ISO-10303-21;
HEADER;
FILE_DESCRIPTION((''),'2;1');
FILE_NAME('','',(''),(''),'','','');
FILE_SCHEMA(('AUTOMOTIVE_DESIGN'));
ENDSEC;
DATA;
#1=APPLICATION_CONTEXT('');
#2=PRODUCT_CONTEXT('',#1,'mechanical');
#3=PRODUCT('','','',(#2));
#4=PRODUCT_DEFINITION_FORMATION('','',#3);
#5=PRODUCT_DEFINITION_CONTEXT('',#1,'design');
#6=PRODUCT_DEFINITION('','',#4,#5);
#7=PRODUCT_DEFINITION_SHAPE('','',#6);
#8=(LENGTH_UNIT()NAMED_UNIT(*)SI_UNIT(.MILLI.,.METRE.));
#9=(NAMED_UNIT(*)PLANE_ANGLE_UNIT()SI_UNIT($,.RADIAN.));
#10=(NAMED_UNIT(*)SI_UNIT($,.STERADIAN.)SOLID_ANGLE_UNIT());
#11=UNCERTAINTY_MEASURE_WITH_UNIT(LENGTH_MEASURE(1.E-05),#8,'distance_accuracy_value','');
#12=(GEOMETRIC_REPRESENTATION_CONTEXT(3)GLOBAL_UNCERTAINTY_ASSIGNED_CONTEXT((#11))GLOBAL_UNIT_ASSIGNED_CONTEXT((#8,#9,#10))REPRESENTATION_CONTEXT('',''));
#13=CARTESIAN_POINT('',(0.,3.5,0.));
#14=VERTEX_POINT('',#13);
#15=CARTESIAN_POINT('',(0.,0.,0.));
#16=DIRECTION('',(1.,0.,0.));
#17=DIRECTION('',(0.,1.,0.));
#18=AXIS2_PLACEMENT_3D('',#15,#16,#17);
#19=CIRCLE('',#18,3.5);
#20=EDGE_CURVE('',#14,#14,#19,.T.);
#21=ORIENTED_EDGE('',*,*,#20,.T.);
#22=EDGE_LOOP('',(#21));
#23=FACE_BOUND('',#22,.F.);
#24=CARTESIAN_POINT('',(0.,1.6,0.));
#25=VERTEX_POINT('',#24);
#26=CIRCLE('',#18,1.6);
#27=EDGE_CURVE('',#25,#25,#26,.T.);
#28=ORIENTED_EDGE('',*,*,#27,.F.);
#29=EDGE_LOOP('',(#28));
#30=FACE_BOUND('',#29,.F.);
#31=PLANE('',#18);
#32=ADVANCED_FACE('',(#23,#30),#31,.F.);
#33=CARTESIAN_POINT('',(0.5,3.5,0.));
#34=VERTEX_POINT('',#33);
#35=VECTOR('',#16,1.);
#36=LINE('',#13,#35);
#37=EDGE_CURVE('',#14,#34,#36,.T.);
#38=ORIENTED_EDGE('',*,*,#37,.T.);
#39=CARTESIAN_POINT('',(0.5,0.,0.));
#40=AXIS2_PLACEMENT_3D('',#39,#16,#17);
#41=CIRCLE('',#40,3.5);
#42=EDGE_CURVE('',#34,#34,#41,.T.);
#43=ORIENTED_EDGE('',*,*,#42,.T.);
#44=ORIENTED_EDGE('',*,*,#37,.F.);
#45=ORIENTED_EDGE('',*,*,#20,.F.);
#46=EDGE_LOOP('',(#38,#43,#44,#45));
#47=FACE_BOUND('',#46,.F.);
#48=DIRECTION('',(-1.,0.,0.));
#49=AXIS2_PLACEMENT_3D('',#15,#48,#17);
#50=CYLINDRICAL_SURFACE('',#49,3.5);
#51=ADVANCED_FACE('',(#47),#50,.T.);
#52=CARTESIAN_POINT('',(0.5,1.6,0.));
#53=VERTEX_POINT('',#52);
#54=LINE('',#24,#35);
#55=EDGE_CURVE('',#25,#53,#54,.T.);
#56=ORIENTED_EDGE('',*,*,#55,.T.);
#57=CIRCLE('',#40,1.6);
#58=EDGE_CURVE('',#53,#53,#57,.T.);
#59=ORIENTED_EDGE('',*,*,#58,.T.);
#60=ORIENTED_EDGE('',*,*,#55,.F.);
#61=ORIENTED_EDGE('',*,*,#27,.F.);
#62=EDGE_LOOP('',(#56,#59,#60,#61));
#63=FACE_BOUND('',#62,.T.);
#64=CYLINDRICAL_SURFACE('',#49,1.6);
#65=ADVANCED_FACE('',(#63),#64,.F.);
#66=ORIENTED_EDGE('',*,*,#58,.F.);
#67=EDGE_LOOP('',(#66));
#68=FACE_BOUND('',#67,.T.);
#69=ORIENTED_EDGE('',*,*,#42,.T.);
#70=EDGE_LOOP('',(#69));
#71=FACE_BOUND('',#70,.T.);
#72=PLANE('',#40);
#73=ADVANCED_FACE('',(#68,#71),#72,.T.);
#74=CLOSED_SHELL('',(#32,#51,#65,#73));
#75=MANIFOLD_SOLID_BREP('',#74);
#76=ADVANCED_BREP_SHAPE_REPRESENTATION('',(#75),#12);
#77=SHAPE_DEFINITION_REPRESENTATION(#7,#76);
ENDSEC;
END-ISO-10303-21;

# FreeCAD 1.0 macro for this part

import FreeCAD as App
import Part
import Sketcher
from FreeCAD import Vector
Q = App.Units.Quantity

doc = App.newDocument("Part")
body = doc.addObject("PartDesign::Body", "Body")

# Sketch on YZ plane
sketch1 = doc.addObject("Sketcher::SketchObject", "Sketch")
body.addObject(sketch1)
sketch1.AttachmentSupport = (doc.YZ_Plane, [""])
sketch1.MapMode = "FlatFace"
sketch1.addGeometry([
    Part.Circle(Vector(0, 0, 0), Vector(0, 0, 1), 3.5),
    Part.Circle(Vector(0, 0, 0), Vector(0, 0, 1), 1.6),
], False)
sketch1.addConstraint([
    Sketcher.Constraint("Coincident", 0, 3, -1, 1),
    Sketcher.Constraint("Coincident", 1, 3, -1, 1),
    Sketcher.Constraint("Diameter", 0, Q("7 mm")),
    Sketcher.Constraint("Diameter", 1, Q("3.2 mm")),
])
pad1 = doc.addObject("PartDesign::Pad", "Pad")
body.addObject(pad1)
pad1.Profile = sketch1
pad1.Length = 0.5

doc.recompute()
